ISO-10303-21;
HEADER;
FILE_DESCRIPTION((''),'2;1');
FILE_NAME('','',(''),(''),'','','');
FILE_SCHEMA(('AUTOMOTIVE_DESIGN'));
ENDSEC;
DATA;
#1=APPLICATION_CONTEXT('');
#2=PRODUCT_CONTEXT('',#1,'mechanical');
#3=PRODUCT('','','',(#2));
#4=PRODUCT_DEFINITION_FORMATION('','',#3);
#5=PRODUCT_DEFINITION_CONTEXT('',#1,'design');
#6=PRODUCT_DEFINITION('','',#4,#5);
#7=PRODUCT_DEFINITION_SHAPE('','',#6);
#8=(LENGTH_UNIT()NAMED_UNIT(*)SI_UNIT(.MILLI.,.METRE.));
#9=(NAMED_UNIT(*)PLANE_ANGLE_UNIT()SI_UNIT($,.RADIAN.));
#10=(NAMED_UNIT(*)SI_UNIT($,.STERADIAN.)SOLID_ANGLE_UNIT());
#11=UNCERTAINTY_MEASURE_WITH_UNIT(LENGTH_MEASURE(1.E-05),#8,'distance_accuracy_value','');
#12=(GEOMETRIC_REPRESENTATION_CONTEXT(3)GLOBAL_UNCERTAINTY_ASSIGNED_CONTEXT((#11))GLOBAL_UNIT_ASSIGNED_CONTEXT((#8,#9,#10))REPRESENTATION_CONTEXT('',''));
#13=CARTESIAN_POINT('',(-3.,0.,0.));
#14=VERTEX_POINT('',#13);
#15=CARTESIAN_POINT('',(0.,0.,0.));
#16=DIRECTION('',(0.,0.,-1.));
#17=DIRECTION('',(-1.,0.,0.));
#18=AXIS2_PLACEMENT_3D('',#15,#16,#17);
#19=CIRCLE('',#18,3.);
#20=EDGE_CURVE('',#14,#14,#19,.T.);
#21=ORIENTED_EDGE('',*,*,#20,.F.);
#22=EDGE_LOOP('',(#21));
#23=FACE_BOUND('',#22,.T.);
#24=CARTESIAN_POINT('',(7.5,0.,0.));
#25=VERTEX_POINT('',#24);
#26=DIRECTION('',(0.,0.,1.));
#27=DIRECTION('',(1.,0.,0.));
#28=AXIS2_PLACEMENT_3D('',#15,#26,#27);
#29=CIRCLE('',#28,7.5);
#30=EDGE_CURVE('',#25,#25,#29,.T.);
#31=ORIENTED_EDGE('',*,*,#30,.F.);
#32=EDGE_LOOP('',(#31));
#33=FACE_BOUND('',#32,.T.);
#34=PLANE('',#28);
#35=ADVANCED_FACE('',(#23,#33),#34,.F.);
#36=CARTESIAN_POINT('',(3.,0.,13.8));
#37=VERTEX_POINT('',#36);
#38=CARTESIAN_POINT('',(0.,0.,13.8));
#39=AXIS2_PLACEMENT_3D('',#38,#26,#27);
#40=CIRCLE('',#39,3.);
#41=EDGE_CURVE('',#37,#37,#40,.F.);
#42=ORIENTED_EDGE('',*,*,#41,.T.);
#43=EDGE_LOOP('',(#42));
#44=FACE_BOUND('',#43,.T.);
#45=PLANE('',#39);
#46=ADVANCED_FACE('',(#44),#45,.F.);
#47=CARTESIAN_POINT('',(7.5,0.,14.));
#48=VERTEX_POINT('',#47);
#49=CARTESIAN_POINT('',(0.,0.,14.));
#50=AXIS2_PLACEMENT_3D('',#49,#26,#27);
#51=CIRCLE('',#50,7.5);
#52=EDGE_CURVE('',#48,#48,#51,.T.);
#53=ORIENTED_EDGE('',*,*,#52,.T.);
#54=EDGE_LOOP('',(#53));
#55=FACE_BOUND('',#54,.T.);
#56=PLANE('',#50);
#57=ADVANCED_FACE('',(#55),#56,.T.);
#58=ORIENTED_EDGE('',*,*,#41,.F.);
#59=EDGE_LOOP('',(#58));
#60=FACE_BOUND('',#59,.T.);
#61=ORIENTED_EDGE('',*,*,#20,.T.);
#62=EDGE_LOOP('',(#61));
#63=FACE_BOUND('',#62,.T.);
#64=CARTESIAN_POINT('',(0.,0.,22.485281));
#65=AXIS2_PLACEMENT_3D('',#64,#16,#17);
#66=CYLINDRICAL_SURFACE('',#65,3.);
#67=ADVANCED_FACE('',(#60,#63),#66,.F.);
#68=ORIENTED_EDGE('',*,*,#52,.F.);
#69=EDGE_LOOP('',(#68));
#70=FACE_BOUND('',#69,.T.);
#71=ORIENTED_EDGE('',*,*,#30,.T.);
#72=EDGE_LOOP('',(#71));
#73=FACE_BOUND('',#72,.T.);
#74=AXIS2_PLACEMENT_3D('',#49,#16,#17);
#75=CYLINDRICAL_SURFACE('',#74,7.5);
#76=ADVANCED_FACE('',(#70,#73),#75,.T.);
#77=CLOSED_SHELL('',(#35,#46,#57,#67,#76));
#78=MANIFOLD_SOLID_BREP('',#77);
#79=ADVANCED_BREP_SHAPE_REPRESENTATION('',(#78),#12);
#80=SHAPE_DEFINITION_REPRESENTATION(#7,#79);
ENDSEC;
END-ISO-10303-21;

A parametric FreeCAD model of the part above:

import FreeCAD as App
import Part
import Sketcher
from FreeCAD import Vector
Q = App.Units.Quantity

doc = App.newDocument("Part")
body = doc.addObject("PartDesign::Body", "Body")

sketch1 = body.newObject("Sketcher::SketchObject", "Sketch")
sketch1.AttachmentSupport = (doc.getObject("XY_Plane"), [""])
sketch1.MapMode = "FlatFace"
sketch1.addGeometry(Part.Circle(Vector(0, 0, 0), Vector(0, 0, 1), 8), False)
sketch1.addConstraint([
    Sketcher.Constraint("Coincident", 0, 3, -1, 1),
    Sketcher.Constraint("Diameter", 0, Q("15 mm")),
])
pad1 = body.newObject("PartDesign::Pad", "Pad")
pad1.Profile = sketch1
pad1.Length = 14

sketch2 = body.newObject("Sketcher::SketchObject", "Sketch001")
sketch2.AttachmentSupport = (doc.getObject("XY_Plane"), [""])
sketch2.MapMode = "FlatFace"
sketch2.addGeometry(Part.Circle(Vector(0, 0, 0), Vector(0, 0, 1), 3), False)
sketch2.addConstraint([
    Sketcher.Constraint("Coincident", 0, 3, -1, 1),
    Sketcher.Constraint("Diameter", 0, Q("6 mm")),
])
pocket1 = body.newObject("PartDesign::Pocket", "Pocket")
pocket1.Profile = sketch2
pocket1.Length = 13.8
pocket1.Reversed = True

doc.recompute()
